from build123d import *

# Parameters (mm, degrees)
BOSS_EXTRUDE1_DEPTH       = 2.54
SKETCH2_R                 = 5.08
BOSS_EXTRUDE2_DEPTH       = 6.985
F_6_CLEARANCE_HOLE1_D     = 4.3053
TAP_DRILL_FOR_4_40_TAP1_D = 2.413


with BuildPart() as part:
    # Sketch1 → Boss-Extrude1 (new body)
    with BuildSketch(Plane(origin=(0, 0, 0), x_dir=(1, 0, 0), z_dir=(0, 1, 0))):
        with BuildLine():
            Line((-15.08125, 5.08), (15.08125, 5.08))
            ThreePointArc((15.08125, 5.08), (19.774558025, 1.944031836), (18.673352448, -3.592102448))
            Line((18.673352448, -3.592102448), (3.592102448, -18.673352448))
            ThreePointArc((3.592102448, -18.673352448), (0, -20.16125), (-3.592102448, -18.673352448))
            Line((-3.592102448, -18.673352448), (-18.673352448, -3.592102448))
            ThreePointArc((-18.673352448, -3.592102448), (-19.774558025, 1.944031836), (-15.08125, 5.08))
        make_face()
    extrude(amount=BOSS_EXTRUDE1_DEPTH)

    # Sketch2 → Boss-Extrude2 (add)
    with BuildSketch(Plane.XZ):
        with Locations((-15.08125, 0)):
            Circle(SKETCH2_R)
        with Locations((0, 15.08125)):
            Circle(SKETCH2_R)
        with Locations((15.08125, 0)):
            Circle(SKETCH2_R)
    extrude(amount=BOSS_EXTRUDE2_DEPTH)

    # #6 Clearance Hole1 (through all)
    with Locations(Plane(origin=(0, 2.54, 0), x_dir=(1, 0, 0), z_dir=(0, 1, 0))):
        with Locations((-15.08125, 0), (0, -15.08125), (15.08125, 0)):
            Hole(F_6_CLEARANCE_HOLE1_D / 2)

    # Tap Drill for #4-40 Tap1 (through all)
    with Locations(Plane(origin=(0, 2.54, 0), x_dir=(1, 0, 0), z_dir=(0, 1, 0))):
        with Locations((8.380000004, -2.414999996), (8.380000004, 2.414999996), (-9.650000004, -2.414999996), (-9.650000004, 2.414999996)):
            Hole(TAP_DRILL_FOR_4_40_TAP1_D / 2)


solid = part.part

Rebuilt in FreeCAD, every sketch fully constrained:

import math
import FreeCAD as App
import Part
import Sketcher
from FreeCAD import Vector
Q = App.Units.Quantity

doc = App.newDocument("Part")
body = doc.addObject("PartDesign::Body", "Body")

# Sketch on XZ plane
sketch1 = body.newObject("Sketcher::SketchObject", "Sketch")
sketch1.AttachmentSupport = (doc.getObject("XZ_Plane"), [""])
sketch1.MapMode = "FlatFace"
sketch1.addGeometry([
    Part.LineSegment(Vector(15, -5, 0), Vector(-15, -5, 0)),  # 0
    Part.ArcOfCircle(Part.Circle(Vector(-15, 0, 0), Vector(0, 0, 1), 5), math.radians(135), math.radians(270)),  # 1
    Part.LineSegment(Vector(-19, 4, 0), Vector(-4, 19, 0)),  # 2
    Part.ArcOfCircle(Part.Circle(Vector(0, 15, 0), Vector(0, 0, 1), 5), math.radians(45), math.radians(135)),  # 3
    Part.LineSegment(Vector(4, 19, 0), Vector(19, 4, 0)),  # 4
    Part.ArcOfCircle(Part.Circle(Vector(15, 0, 0), Vector(0, 0, 1), 5), math.radians(-90), math.radians(45)),  # 5
], False)
sketch1.addConstraint([
    Sketcher.Constraint("Tangent", 0, 2, 1, 2),
    Sketcher.Constraint("Tangent", 1, 1, 2, 1),
    Sketcher.Constraint("Tangent", 2, 2, 3, 2),
    Sketcher.Constraint("Tangent", 3, 1, 4, 1),
    Sketcher.Constraint("Tangent", 4, 2, 5, 2),
    Sketcher.Constraint("Tangent", 5, 1, 0, 1),
    Sketcher.Constraint("Horizontal", 0),
    Sketcher.Constraint("Equal", 1, 3),
    Sketcher.Constraint("Equal", 3, 5),
    Sketcher.Constraint("Symmetric", 1, 3, 5, 3, -1, 1),
    Sketcher.Constraint("PointOnObject", 3, 3, -2),
    Sketcher.Constraint("Perpendicular", 2, 4),
    Sketcher.Constraint("Radius", 1, Q("0.2 in")),
    Sketcher.Constraint("DistanceX", 0, 2, 0, 1, Q("1.1875 in")),
])
pad1 = body.newObject("PartDesign::Pad", "Pad")
pad1.Profile = sketch1
pad1.Length = Q("0.1 in")
pad1.Reversed = True

# Sketch on XZ plane
sketch2 = body.newObject("Sketcher::SketchObject", "Sketch001")
sketch2.AttachmentSupport = (doc.getObject("XZ_Plane"), [""])
sketch2.MapMode = "FlatFace"
sketch2.addGeometry([
    Part.Circle(Vector(-15, 0, 0), Vector(0, 0, 1), 5),
    Part.Circle(Vector(0, 15, 0), Vector(0, 0, 1), 5),
    Part.Circle(Vector(15, 0, 0), Vector(0, 0, 1), 5),
], False)
sketch2.addConstraint([
    Sketcher.Constraint("Equal", 0, 1),
    Sketcher.Constraint("Equal", 1, 2),
    Sketcher.Constraint("Symmetric", 0, 3, 2, 3, -1, 1),
    Sketcher.Constraint("PointOnObject", 0, 3, -1),
    Sketcher.Constraint("PointOnObject", 1, 3, -2),
    Sketcher.Constraint("Diameter", 0, Q("0.4 in")),
    Sketcher.Constraint("DistanceX", 0, 3, -1, 1, Q("0.59375 in")),
    Sketcher.Constraint("DistanceY", -1, 1, 1, 3, Q("0.59375 in")),
])
pad2 = body.newObject("PartDesign::Pad", "Pad001")
pad2.Profile = sketch2
pad2.Length = Q("0.275 in")

# Sketch on XZ plane
sketch3 = body.newObject("Sketcher::SketchObject", "Sketch002")
sketch3.AttachmentSupport = (doc.getObject("XZ_Plane"), [""])
sketch3.MapMode = "FlatFace"
sketch3.AttachmentOffset = App.Placement(Vector(0, 0, -0.1 * 25.4), App.Rotation())
sketch3.addGeometry([
    Part.Circle(Vector(-15.1, 0, 0), Vector(0, 0, 1), 2.2),
    Part.Circle(Vector(0, 15.1, 0), Vector(0, 0, 1), 2.2),
    Part.Circle(Vector(15.1, 0, 0), Vector(0, 0, 1), 2.2),
], False)
sketch3.addConstraint([
    Sketcher.Constraint("Equal", 0, 1),
    Sketcher.Constraint("Equal", 1, 2),
    Sketcher.Constraint("Symmetric", 0, 3, 2, 3, -1, 1),
    Sketcher.Constraint("PointOnObject", 0, 3, -1),
    Sketcher.Constraint("PointOnObject", 1, 3, -2),
    Sketcher.Constraint("Diameter", 0, Q("0.1695 in")),
    Sketcher.Constraint("DistanceX", 0, 3, -1, 1, Q("0.59375 in")),
    Sketcher.Constraint("DistanceY", -1, 1, 1, 3, Q("0.59375 in")),
])
doc.recompute()
hole = body.newObject("PartDesign::Hole", "Hole")
hole.Profile = sketch3
hole.ThreadType = "None"
hole.Diameter = Q("0.1695 in")
hole.DepthType = "ThroughAll"
hole.Reversed = True

# Sketch on XZ plane
sketch4 = body.newObject("Sketcher::SketchObject", "Sketch003")
sketch4.AttachmentSupport = (doc.getObject("XZ_Plane"), [""])
sketch4.MapMode = "FlatFace"
sketch4.AttachmentOffset = App.Placement(Vector(0, 0, -0.1 * 25.4), App.Rotation())
sketch4.addGeometry([
    Part.Circle(Vector(8.4, 2.4, 0), Vector(0, 0, 1), 1.2),
    Part.Circle(Vector(8.4, -2.4, 0), Vector(0, 0, 1), 1.2),
    Part.Circle(Vector(-9.7, 2.4, 0), Vector(0, 0, 1), 1.2),
    Part.Circle(Vector(-9.7, -2.4, 0), Vector(0, 0, 1), 1.2),
], False)
sketch4.addConstraint([
    Sketcher.Constraint("Equal", 0, 1),
    Sketcher.Constraint("Equal", 1, 2),
    Sketcher.Constraint("Equal", 2, 3),
    Sketcher.Constraint("Symmetric", 0, 3, 1, 3, -1),
    Sketcher.Constraint("Symmetric", 2, 3, 3, 3, -1),
    Sketcher.Constraint("Horizontal", 0, 3, 2, 3),
    Sketcher.Constraint("Diameter", 0, Q("0.095 in")),
    Sketcher.Constraint("DistanceX", -1, 1, 0, 3, 8.38),
    Sketcher.Constraint("DistanceY", -1, 1, 0, 3, 2.415),
    Sketcher.Constraint("DistanceX", 2, 3, -1, 1, 9.65),
])
doc.recompute()
hole2 = body.newObject("PartDesign::Hole", "Hole001")
hole2.Profile = sketch4
hole2.ThreadType = "None"
hole2.Diameter = Q("0.095 in")
hole2.DepthType = "ThroughAll"
hole2.Reversed = True

doc.recompute()
